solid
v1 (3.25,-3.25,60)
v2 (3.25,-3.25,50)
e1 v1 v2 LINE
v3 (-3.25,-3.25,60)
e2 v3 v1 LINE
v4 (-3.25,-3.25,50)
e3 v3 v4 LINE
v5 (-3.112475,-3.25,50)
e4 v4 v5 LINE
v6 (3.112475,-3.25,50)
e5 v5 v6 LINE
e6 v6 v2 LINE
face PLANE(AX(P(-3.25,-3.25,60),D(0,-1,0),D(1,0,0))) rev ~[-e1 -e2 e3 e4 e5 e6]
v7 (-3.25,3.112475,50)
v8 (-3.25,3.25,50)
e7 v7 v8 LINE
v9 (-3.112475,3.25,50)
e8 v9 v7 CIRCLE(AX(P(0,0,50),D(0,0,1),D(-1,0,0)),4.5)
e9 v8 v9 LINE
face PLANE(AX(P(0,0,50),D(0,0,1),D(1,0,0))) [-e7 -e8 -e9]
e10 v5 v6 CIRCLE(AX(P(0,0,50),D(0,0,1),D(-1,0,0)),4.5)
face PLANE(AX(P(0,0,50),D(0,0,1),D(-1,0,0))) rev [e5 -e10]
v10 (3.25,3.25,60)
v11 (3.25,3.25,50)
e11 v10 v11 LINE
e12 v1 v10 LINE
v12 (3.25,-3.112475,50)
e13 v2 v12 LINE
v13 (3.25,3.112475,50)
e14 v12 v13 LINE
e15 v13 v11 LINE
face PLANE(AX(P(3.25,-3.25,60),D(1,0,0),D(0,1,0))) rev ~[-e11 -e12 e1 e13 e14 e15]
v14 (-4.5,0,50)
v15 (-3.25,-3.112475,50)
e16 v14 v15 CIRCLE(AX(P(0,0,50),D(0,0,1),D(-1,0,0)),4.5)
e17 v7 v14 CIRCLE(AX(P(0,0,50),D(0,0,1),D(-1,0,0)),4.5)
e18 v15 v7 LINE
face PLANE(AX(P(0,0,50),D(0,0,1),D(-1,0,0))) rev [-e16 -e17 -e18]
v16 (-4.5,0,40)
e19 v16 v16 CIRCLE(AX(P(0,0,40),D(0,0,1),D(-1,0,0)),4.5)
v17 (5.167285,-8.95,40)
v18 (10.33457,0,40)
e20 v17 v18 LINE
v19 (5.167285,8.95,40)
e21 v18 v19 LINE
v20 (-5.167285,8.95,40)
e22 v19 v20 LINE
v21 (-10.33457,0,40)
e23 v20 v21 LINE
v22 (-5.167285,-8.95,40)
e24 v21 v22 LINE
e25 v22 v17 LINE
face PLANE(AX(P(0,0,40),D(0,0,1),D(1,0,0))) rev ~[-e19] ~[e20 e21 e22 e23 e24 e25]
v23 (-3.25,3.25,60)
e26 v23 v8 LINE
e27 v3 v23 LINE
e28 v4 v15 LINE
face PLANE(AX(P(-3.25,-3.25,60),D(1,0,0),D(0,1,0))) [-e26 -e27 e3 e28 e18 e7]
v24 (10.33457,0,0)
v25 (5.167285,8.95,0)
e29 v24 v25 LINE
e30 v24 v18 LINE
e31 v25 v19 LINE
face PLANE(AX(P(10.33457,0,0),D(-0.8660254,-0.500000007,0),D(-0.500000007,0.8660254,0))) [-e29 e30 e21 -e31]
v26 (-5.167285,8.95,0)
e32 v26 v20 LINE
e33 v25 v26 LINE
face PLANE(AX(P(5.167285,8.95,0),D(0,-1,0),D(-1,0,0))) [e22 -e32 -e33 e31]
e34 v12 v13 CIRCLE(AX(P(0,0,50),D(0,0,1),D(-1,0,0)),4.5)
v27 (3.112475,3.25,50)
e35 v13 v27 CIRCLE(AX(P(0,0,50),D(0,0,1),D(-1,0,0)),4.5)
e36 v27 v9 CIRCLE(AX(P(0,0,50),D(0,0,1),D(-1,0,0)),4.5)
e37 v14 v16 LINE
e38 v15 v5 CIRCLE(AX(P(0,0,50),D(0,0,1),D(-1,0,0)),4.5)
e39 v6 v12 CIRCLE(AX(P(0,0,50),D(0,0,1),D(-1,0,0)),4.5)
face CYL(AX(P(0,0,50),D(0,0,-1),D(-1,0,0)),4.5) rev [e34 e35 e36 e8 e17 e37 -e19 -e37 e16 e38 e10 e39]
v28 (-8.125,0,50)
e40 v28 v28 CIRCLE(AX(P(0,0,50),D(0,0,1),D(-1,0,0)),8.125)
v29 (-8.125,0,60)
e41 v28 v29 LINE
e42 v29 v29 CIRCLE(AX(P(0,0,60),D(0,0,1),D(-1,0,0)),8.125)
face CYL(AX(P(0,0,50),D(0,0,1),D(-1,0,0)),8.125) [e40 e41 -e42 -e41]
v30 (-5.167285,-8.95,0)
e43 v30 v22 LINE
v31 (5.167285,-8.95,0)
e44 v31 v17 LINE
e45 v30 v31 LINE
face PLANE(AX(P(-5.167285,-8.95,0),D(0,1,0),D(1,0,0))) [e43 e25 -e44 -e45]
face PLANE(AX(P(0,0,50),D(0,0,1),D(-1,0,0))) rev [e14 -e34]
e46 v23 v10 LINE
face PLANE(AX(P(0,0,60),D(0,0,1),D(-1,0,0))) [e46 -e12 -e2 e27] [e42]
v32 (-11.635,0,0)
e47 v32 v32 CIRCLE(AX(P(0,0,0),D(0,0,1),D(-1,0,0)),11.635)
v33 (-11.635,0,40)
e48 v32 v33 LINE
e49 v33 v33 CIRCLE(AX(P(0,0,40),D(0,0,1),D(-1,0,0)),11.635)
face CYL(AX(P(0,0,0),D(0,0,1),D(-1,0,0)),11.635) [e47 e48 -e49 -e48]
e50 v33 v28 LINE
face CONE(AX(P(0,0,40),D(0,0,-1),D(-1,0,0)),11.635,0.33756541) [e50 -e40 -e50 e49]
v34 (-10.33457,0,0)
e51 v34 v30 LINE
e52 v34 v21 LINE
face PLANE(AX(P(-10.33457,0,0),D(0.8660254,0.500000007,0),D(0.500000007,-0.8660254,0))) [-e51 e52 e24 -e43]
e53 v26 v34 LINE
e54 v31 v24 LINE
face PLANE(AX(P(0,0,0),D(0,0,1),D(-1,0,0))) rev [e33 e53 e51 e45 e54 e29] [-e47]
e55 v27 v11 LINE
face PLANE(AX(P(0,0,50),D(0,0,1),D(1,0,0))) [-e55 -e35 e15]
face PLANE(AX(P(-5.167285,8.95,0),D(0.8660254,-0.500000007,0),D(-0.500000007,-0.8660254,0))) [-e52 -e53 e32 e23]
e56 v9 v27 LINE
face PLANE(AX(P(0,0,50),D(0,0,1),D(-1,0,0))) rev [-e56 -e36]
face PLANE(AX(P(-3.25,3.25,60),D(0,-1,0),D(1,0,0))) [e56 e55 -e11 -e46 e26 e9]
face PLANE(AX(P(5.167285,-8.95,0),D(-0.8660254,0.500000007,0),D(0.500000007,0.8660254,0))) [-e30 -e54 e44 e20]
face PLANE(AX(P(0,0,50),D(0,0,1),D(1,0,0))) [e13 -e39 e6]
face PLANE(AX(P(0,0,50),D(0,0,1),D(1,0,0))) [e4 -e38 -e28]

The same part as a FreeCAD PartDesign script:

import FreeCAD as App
import Part
import Sketcher

V = App.Vector
Q = App.Units.Quantity

doc = App.newDocument("Part")
body = doc.addObject("PartDesign::Body", "Body")

sketch1 = body.newObject("Sketcher::SketchObject", "Sketch")
sketch1.AttachmentSupport = (doc.getObject("XZ_Plane"), [""])
sketch1.MapMode = "FlatFace"
sketch1.addGeometry(Part.LineSegment(V(-11.6, 0, 0), V(0, 0, 0)), False)
sketch1.addGeometry(Part.LineSegment(V(0, 0, 0), V(0, 40, 0)), False)
sketch1.addGeometry(Part.LineSegment(V(0, 40, 0), V(-4.5, 40, 0)), False)
sketch1.addGeometry(Part.LineSegment(V(-4.5, 40, 0), V(-4.5, 50, 0)), False)
sketch1.addGeometry(Part.LineSegment(V(-4.5, 50, 0), V(0, 50, 0)), False)
sketch1.addGeometry(Part.LineSegment(V(0, 50, 0), V(0, 60, 0)), False)
sketch1.addGeometry(Part.LineSegment(V(0, 60, 0), V(-8.1, 60, 0)), False)
sketch1.addGeometry(Part.LineSegment(V(-8.1, 60, 0), V(-8.1, 50, 0)), False)
sketch1.addGeometry(Part.LineSegment(V(-8.1, 50, 0), V(-11.6, 40, 0)), False)
sketch1.addGeometry(Part.LineSegment(V(-11.6, 40, 0), V(-11.6, 0, 0)), False)
sketch1.addConstraint(Sketcher.Constraint("Coincident", 0, 2, 1, 1))
sketch1.addConstraint(Sketcher.Constraint("Coincident", 1, 2, 2, 1))
sketch1.addConstraint(Sketcher.Constraint("Coincident", 2, 2, 3, 1))
sketch1.addConstraint(Sketcher.Constraint("Coincident", 3, 2, 4, 1))
sketch1.addConstraint(Sketcher.Constraint("Coincident", 4, 2, 5, 1))
sketch1.addConstraint(Sketcher.Constraint("Coincident", 5, 2, 6, 1))
sketch1.addConstraint(Sketcher.Constraint("Coincident", 6, 2, 7, 1))
sketch1.addConstraint(Sketcher.Constraint("Coincident", 7, 2, 8, 1))
sketch1.addConstraint(Sketcher.Constraint("Coincident", 8, 2, 9, 1))
sketch1.addConstraint(Sketcher.Constraint("Coincident", 9, 2, 0, 1))
sketch1.addConstraint(Sketcher.Constraint("Horizontal", 0))
sketch1.addConstraint(Sketcher.Constraint("Vertical", 1))
sketch1.addConstraint(Sketcher.Constraint("Horizontal", 2))
sketch1.addConstraint(Sketcher.Constraint("Vertical", 3))
sketch1.addConstraint(Sketcher.Constraint("Horizontal", 4))
sketch1.addConstraint(Sketcher.Constraint("Vertical", 5))
sketch1.addConstraint(Sketcher.Constraint("Horizontal", 6))
sketch1.addConstraint(Sketcher.Constraint("Vertical", 7))
sketch1.addConstraint(Sketcher.Constraint("Vertical", 9))
sketch1.addConstraint(Sketcher.Constraint("Coincident", 0, 2, -1, 1))
sketch1.addConstraint(Sketcher.Constraint("PointOnObject", 4, 2, -2))
sketch1.addConstraint(Sketcher.Constraint("Horizontal", 4, 2, 7, 2))
sketch1.addConstraint(Sketcher.Constraint("Horizontal", 2, 2, 8, 2))
sketch1.addConstraint(Sketcher.Constraint("Equal", 3, 5))
sketch1.addConstraint(Sketcher.Constraint("DistanceY", 1, 1, 1, 2, Q("40 mm")))
sketch1.addConstraint(Sketcher.Constraint("DistanceY", 3, 1, 3, 2, Q("10 mm")))
sketch1.addConstraint(Sketcher.Constraint("DistanceX", 2, 2, 2, 1, Q("4.5 mm")))
sketch1.addConstraint(Sketcher.Constraint("DistanceX", 0, 1, 0, 2, Q("11.635 mm")))
sketch1.addConstraint(Sketcher.Constraint("DistanceX", 6, 2, 6, 1, Q("8.125 mm")))
revolution = body.newObject("PartDesign::Revolution", "Revolution")
revolution.Profile = sketch1
revolution.ReferenceAxis = (sketch1, ["V_Axis"])
revolution.Angle = 360

sketch2 = body.newObject("Sketcher::SketchObject", "Sketch001")
sketch2.AttachmentSupport = (doc.getObject("XY_Plane"), [""])
sketch2.MapMode = "FlatFace"
sketch2.AttachmentOffset = App.Placement(V(0, 0, 60), App.Rotation())
sketch2.addGeometry(Part.LineSegment(V(-3, 3, 0), V(-3, -3, 0)), False)
sketch2.addGeometry(Part.LineSegment(V(-3, -3, 0), V(3, -3, 0)), False)
sketch2.addGeometry(Part.LineSegment(V(3, -3, 0), V(3, 3, 0)), False)
sketch2.addGeometry(Part.LineSegment(V(3, 3, 0), V(-3, 3, 0)), False)
sketch2.addConstraint(Sketcher.Constraint("Coincident", 0, 2, 1, 1))
sketch2.addConstraint(Sketcher.Constraint("Coincident", 1, 2, 2, 1))
sketch2.addConstraint(Sketcher.Constraint("Coincident", 2, 2, 3, 1))
sketch2.addConstraint(Sketcher.Constraint("Coincident", 3, 2, 0, 1))
sketch2.addConstraint(Sketcher.Constraint("Vertical", 0))
sketch2.addConstraint(Sketcher.Constraint("Horizontal", 1))
sketch2.addConstraint(Sketcher.Constraint("Vertical", 2))
sketch2.addConstraint(Sketcher.Constraint("Horizontal", 3))
sketch2.addConstraint(Sketcher.Constraint("Symmetric", 0, 2, 2, 2, -1, 1))
sketch2.addConstraint(Sketcher.Constraint("Equal", 3, 0))
sketch2.addConstraint(Sketcher.Constraint("DistanceX", 1, 1, 1, 2, Q("6.5 mm")))
pocket1 = body.newObject("PartDesign::Pocket", "Pocket")
pocket1.Profile = sketch2
pocket1.Length = 10

sketch3 = body.newObject("Sketcher::SketchObject", "Sketch002")
sketch3.AttachmentSupport = (doc.getObject("XY_Plane"), [""])
sketch3.MapMode = "FlatFace"
sketch3.addGeometry(Part.LineSegment(V(10, 0, 0), V(5, 9, 0)), False)
sketch3.addGeometry(Part.LineSegment(V(5, 9, 0), V(-5, 9, 0)), False)
sketch3.addGeometry(Part.LineSegment(V(-5, 9, 0), V(-10, 0, 0)), False)
sketch3.addGeometry(Part.LineSegment(V(-10, 0, 0), V(-5, -9, 0)), False)
sketch3.addGeometry(Part.LineSegment(V(-5, -9, 0), V(5, -9, 0)), False)
sketch3.addGeometry(Part.LineSegment(V(5, -9, 0), V(10, 0, 0)), False)
sketch3.addConstraint(Sketcher.Constraint("Coincident", 0, 2, 1, 1))
sketch3.addConstraint(Sketcher.Constraint("Coincident", 1, 2, 2, 1))
sketch3.addConstraint(Sketcher.Constraint("Coincident", 2, 2, 3, 1))
sketch3.addConstraint(Sketcher.Constraint("Coincident", 3, 2, 4, 1))
sketch3.addConstraint(Sketcher.Constraint("Coincident", 4, 2, 5, 1))
sketch3.addConstraint(Sketcher.Constraint("Coincident", 5, 2, 0, 1))
sketch3.addConstraint(Sketcher.Constraint("Horizontal", 1))
sketch3.addConstraint(Sketcher.Constraint("Horizontal", 4))
sketch3.addConstraint(Sketcher.Constraint("Symmetric", 0, 2, 3, 2, -1, 1))
sketch3.addConstraint(Sketcher.Constraint("Symmetric", 2, 2, 5, 2, -1, 1))
sketch3.addConstraint(Sketcher.Constraint("PointOnObject", 2, 2, -1))
sketch3.addConstraint(Sketcher.Constraint("Parallel", 2, 5))
sketch3.addConstraint(Sketcher.Constraint("Vertical", 1, 2, 3, 2))
sketch3.addConstraint(Sketcher.Constraint("Angle", 0, Q("120 deg")))
sketch3.addConstraint(Sketcher.Constraint("DistanceY", 3, 2, 1, 2, Q("17.9 mm")))
sketch3.addConstraint(Sketcher.Constraint("DistanceX", 1, 2, 1, 1, Q("10.33457 mm")))
pocket2 = body.newObject("PartDesign::Pocket", "Pocket001")
pocket2.Profile = sketch3
pocket2.Length = 40
pocket2.Reversed = True

doc.recompute()
